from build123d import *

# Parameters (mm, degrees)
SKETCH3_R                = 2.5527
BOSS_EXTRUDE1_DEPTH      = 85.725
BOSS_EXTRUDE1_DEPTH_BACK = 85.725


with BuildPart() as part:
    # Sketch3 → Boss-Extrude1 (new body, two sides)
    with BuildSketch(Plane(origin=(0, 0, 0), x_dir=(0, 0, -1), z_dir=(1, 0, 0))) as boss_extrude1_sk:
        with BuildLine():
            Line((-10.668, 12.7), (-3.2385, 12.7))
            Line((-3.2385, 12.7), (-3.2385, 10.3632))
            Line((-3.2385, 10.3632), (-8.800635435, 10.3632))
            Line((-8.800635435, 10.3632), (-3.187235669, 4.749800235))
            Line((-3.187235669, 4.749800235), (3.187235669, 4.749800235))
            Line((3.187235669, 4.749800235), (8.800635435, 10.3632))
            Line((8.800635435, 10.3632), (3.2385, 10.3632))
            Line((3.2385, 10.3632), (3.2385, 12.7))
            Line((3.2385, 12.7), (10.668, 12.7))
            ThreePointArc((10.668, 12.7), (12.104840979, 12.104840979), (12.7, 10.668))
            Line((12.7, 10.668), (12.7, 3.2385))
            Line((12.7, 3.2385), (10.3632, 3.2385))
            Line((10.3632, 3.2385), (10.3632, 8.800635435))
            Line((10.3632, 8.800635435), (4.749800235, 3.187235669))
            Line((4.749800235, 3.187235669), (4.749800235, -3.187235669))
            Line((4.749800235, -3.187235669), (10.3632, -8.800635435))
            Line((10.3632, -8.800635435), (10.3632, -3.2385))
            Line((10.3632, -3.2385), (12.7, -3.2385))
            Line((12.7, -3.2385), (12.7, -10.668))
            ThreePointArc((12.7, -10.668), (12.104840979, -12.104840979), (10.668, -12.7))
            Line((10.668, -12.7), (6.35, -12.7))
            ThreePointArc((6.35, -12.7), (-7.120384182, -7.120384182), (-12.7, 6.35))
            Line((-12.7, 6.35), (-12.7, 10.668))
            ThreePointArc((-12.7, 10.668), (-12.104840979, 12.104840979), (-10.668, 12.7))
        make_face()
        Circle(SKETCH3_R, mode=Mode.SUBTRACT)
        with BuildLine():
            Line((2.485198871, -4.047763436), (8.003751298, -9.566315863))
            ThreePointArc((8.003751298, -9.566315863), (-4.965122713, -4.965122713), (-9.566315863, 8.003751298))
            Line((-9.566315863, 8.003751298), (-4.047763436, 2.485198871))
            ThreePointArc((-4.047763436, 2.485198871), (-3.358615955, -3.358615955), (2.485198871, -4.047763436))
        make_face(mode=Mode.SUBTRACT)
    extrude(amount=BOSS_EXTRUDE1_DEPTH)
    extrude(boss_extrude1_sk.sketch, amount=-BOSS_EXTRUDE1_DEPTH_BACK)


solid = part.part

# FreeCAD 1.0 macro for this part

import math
import FreeCAD as App
import Part
import Sketcher
from FreeCAD import Vector
Q = App.Units.Quantity

doc = App.newDocument("Part")
body = doc.addObject("PartDesign::Body", "Body")

sketch1 = body.newObject("Sketcher::SketchObject", "Sketch")
sketch1.AttachmentSupport = (doc.getObject("YZ_Plane"), [""])
sketch1.MapMode = "FlatFace"
sketch1.addGeometry([
    Part.LineSegment(Vector(12.7, 3.2, 0), Vector(12.7, 10.7, 0)),
    Part.ArcOfCircle(Part.Circle(Vector(10.7, 10.7, 0), Vector(0, 0, 1), 2), math.radians(0), math.radians(90)),
    Part.LineSegment(Vector(10.7, 12.7, 0), Vector(6.3, 12.7, 0)),
    Part.ArcOfCircle(Part.Circle(Vector(6.3, -6.3, 0), Vector(0, 0, 1), 19), math.radians(90), math.radians(180)),
    Part.LineSegment(Vector(-12.7, -6.3, 0), Vector(-12.7, -10.7, 0)),
    Part.ArcOfCircle(Part.Circle(Vector(-10.7, -10.7, 0), Vector(0, 0, 1), 2), math.radians(-180), math.radians(-90)),
    Part.LineSegment(Vector(-10.7, -12.7, 0), Vector(-3.2, -12.7, 0)),
    Part.LineSegment(Vector(-3.2, -12.7, 0), Vector(-3.2, -10.4, 0)),
    Part.LineSegment(Vector(-3.2, -10.4, 0), Vector(-8.8, -10.4, 0)),
    Part.LineSegment(Vector(-8.8, -10.4, 0), Vector(-3.2, -4.7, 0)),
    Part.LineSegment(Vector(-3.2, -4.7, 0), Vector(3.2, -4.7, 0)),
    Part.LineSegment(Vector(3.2, -4.7, 0), Vector(8.8, -10.4, 0)),
    Part.LineSegment(Vector(8.8, -10.4, 0), Vector(3.2, -10.4, 0)),
    Part.LineSegment(Vector(3.2, -10.4, 0), Vector(3.2, -12.7, 0)),
    Part.LineSegment(Vector(3.2, -12.7, 0), Vector(10.7, -12.7, 0)),
    Part.ArcOfCircle(Part.Circle(Vector(10.7, -10.7, 0), Vector(0, 0, 1), 2), math.radians(-90), math.radians(0)),
    Part.LineSegment(Vector(12.7, -10.7, 0), Vector(12.7, -3.2, 0)),
    Part.LineSegment(Vector(12.7, -3.2, 0), Vector(10.4, -3.2, 0)),
    Part.LineSegment(Vector(10.4, -3.2, 0), Vector(10.4, -8.8, 0)),
    Part.LineSegment(Vector(10.4, -8.8, 0), Vector(4.7, -3.2, 0)),
    Part.LineSegment(Vector(4.7, -3.2, 0), Vector(4.7, 3.2, 0)),
    Part.LineSegment(Vector(4.7, 3.2, 0), Vector(10.4, 8.8, 0)),
    Part.LineSegment(Vector(10.4, 8.8, 0), Vector(10.4, 3.2, 0)),
    Part.LineSegment(Vector(10.4, 3.2, 0), Vector(12.7, 3.2, 0)),
    Part.Circle(Vector(0, 0, 0), Vector(0, 0, 1), 2.6),
    Part.LineSegment(Vector(-4, -2.5, 0), Vector(-9.6, -8, 0)),
    Part.ArcOfCircle(Part.Circle(Vector(6.3, -6.3, 0), Vector(0, 0, 1), 16), math.radians(84), math.radians(186)),
    Part.LineSegment(Vector(8, 9.6, 0), Vector(2.5, 4, 0)),
    Part.ArcOfCircle(Part.Circle(Vector(0, 0, 0), Vector(0, 0, 1), 4.7), math.radians(58), math.radians(212)),
], False)
sketch1.addConstraint([
    Sketcher.Constraint("Tangent", 0, 2, 1, 1),
    Sketcher.Constraint("Tangent", 1, 2, 2, 1),
    Sketcher.Constraint("Tangent", 2, 2, 3, 1),
    Sketcher.Constraint("Tangent", 3, 2, 4, 1),
    Sketcher.Constraint("Tangent", 4, 2, 5, 1),
    Sketcher.Constraint("Tangent", 5, 2, 6, 1),
    Sketcher.Constraint("Coincident", 6, 2, 7, 1),
    Sketcher.Constraint("Coincident", 7, 2, 8, 1),
    Sketcher.Constraint("Coincident", 8, 2, 9, 1),
    Sketcher.Constraint("Coincident", 9, 2, 10, 1),
    Sketcher.Constraint("Coincident", 10, 2, 11, 1),
    Sketcher.Constraint("Coincident", 11, 2, 12, 1),
    Sketcher.Constraint("Coincident", 12, 2, 13, 1),
    Sketcher.Constraint("Coincident", 13, 2, 14, 1),
    Sketcher.Constraint("Tangent", 14, 2, 15, 1),
    Sketcher.Constraint("Tangent", 15, 2, 16, 1),
    Sketcher.Constraint("Coincident", 16, 2, 17, 1),
    Sketcher.Constraint("Coincident", 17, 2, 18, 1),
    Sketcher.Constraint("Coincident", 18, 2, 19, 1),
    Sketcher.Constraint("Coincident", 19, 2, 20, 1),
    Sketcher.Constraint("Coincident", 20, 2, 21, 1),
    Sketcher.Constraint("Coincident", 21, 2, 22, 1),
    Sketcher.Constraint("Coincident", 22, 2, 23, 1),
    Sketcher.Constraint("Coincident", 23, 2, 0, 1),
    Sketcher.Constraint("Coincident", 25, 2, 26, 2),
    Sketcher.Constraint("Coincident", 26, 1, 27, 1),
    Sketcher.Constraint("Coincident", 27, 2, 28, 1),
    Sketcher.Constraint("Coincident", 28, 2, 25, 1),
    Sketcher.Constraint("Vertical", 0),
    Sketcher.Constraint("Horizontal", 2),
    Sketcher.Constraint("Vertical", 4),
    Sketcher.Constraint("Horizontal", 6),
    Sketcher.Constraint("Vertical", 7),
    Sketcher.Constraint("Horizontal", 8),
    Sketcher.Constraint("Horizontal", 10),
    Sketcher.Constraint("Horizontal", 12),
    Sketcher.Constraint("Vertical", 13),
    Sketcher.Constraint("Horizontal", 14),
    Sketcher.Constraint("Vertical", 16),
    Sketcher.Constraint("Horizontal", 17),
    Sketcher.Constraint("Vertical", 18),
    Sketcher.Constraint("Vertical", 20),
    Sketcher.Constraint("Vertical", 22),
    Sketcher.Constraint("Horizontal", 23),
    Sketcher.Constraint("Coincident", 24, 3, -1, 1),
    Sketcher.Constraint("Coincident", 28, 3, -1, 1),
    Sketcher.Constraint("Coincident", 26, 3, 3, 3),
    Sketcher.Constraint("Equal", 1, 5),
    Sketcher.Constraint("Equal", 5, 15),
    Sketcher.Constraint("Symmetric", 1, 3, 5, 3, -1, 1),
    Sketcher.Constraint("Symmetric", 5, 3, 15, 3, -2),
    Sketcher.Constraint("Symmetric", 8, 2, 11, 2, -2),
    Sketcher.Constraint("Symmetric", 18, 2, 21, 2, -1),
    Sketcher.Constraint("Perpendicular", 9, 11),
    Sketcher.Constraint("Parallel", 11, 19),
    Sketcher.Constraint("Perpendicular", 19, 21),
    Sketcher.Constraint("Parallel", 21, 25),
    Sketcher.Constraint("Parallel", 25, 27),
    Sketcher.Constraint("Equal", 8, 12),
    Sketcher.Constraint("Equal", 14, 0),
    Sketcher.Constraint("Equal", 2, 4),
    Sketcher.Constraint("Equal", 23, 7),
    Sketcher.Constraint("Equal", 0, 16),
    Sketcher.Constraint("Equal", 12, 18),
    Sketcher.Constraint("Equal", 10, 20),
    Sketcher.Constraint("Equal", 9, 11),
    Sketcher.Constraint("Equal", 25, 27),
    Sketcher.Constraint("Radius", 1, Q("0.08 in")),
    Sketcher.Constraint("Radius", 3, Q("0.75 in")),
    Sketcher.Constraint("Radius", 26, Q("0.63 in")),
    Sketcher.Constraint("Diameter", 24, Q("0.201 in")),
    Sketcher.Constraint("Radius", 28, Q("0.187 in")),
    Sketcher.Constraint("DistanceX", 2, 2, 2, 1, Q("0.17 in")),
    Sketcher.Constraint("DistanceX", 17, 2, 17, 1, Q("0.092 in")),
    Sketcher.Constraint("DistanceX", 6, 1, 6, 2, Q("0.2925 in")),
    Sketcher.Constraint("DistanceY", 9, 2, -1, 1, Q("0.187 in")),
    Sketcher.Constraint("DistanceX", 10, 1, 10, 2, 6.374471),
    Sketcher.Constraint("DistanceX", -1, 1, 27, 2, 2.485199),
])
pad1 = body.newObject("PartDesign::Pad", "Pad")
pad1.Profile = sketch1
pad1.Type = "TwoLengths"
pad1.Length = Q("3.375 in")
pad1.Length2 = Q("3.375 in")

doc.recompute()
